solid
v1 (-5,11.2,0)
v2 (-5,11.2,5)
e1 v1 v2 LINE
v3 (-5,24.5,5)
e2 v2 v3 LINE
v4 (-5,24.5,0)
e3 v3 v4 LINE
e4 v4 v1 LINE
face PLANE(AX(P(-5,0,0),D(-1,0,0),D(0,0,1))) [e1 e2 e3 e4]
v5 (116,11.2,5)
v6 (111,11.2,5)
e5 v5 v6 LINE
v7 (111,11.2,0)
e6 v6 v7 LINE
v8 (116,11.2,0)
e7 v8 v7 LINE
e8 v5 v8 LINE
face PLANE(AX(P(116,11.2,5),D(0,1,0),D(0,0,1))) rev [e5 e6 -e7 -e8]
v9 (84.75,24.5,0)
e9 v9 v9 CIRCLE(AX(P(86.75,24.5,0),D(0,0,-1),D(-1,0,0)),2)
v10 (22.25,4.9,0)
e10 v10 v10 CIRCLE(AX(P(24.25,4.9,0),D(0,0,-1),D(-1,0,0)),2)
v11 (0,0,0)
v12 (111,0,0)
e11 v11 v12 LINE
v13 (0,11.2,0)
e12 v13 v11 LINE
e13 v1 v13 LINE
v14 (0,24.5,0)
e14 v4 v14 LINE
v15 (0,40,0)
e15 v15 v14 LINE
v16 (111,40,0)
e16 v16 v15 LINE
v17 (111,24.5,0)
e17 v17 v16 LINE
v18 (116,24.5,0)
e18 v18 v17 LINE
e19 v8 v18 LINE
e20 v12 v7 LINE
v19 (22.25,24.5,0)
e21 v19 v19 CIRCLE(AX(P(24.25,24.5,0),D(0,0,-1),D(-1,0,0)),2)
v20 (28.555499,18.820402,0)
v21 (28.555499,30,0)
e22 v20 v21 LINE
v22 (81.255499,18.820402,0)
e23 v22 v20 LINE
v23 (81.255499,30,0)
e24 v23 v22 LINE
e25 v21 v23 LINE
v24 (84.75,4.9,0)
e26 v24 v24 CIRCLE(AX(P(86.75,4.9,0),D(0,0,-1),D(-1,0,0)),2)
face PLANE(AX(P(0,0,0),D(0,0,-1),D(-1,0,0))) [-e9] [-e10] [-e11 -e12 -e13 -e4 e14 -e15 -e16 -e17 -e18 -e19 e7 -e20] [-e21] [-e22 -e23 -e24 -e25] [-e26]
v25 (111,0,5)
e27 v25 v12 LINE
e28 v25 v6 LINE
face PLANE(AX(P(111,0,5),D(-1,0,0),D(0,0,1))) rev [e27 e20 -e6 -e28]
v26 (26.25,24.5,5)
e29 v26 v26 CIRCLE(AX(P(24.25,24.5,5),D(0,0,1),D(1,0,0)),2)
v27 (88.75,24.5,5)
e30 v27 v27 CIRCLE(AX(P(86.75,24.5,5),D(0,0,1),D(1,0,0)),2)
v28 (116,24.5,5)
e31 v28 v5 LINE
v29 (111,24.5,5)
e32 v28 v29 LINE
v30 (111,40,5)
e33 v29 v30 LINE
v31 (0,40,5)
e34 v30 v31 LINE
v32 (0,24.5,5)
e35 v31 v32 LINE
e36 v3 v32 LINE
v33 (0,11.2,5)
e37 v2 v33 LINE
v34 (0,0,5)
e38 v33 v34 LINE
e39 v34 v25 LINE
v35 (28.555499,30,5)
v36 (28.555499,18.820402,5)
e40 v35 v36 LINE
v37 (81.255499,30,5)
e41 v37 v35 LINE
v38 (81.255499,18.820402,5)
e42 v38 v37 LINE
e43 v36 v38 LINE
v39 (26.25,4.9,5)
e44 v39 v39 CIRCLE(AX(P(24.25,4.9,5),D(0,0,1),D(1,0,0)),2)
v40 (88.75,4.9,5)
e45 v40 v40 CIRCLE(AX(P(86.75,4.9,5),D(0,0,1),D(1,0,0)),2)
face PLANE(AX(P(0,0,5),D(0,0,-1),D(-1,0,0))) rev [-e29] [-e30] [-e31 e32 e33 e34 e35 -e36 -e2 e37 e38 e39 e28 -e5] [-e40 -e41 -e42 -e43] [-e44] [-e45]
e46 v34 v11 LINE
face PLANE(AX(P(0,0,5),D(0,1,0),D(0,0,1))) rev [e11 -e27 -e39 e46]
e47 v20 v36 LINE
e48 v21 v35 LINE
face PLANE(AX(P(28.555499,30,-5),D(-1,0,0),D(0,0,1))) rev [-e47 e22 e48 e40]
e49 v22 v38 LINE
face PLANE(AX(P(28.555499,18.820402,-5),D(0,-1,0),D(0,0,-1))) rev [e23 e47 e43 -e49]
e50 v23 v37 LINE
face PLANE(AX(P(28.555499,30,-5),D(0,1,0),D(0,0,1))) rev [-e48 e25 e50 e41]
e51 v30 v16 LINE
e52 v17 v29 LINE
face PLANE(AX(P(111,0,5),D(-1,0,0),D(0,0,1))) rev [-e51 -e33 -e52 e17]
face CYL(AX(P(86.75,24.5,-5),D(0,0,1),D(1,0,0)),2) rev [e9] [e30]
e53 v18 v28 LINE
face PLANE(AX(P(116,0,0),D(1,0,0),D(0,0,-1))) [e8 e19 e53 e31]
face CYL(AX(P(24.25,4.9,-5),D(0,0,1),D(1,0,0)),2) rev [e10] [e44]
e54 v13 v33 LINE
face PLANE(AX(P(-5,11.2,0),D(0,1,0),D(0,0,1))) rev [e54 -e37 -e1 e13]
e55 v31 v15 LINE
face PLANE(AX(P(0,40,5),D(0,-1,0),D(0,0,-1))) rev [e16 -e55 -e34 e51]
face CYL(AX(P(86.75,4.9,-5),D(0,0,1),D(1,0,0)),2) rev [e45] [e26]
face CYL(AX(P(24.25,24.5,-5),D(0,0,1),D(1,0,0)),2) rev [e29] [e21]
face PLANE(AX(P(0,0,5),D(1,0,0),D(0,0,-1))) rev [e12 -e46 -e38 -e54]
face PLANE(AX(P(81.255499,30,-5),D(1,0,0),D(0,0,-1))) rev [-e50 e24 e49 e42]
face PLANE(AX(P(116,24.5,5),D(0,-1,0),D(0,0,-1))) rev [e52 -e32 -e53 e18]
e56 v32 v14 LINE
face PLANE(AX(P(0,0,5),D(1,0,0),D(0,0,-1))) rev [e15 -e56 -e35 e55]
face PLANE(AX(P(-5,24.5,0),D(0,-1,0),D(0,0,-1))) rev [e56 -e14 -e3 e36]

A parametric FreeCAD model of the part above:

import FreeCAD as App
import Part
import Sketcher
Q = App.Units.Quantity


def add_polygon(sketch, points):
    """Adds a closed chain of lines whose ends are joined by coincident constraints."""
    first, n = sketch.GeometryCount, len(points)
    for a, b in zip(points, points[1:] + points[:1]):
        sketch.addGeometry(Part.LineSegment(App.Vector(*a, 0), App.Vector(*b, 0)), False)
    for i in range(n):
        sketch.addConstraint(Sketcher.Constraint("Coincident", first + i, 2, first + (i + 1) % n, 1))

doc = App.newDocument("Part")
body = doc.addObject("PartDesign::Body", "Body")

# Sketch on XY plane
sketch1 = body.newObject("Sketcher::SketchObject", "Sketch")
sketch1.AttachmentSupport = (doc.getObject("XY_Plane"), [""])
sketch1.MapMode = "FlatFace"
add_polygon(sketch1, [(0, 40), (0, 0), (111, 0), (111, 40)])  # lines 0-3
sketch1.addConstraint([
    Sketcher.Constraint("Vertical", 0),
    Sketcher.Constraint("Horizontal", 1),
    Sketcher.Constraint("Vertical", 2),
    Sketcher.Constraint("Horizontal", 3),
    Sketcher.Constraint("Coincident", 0, 2, -1, 1),
    Sketcher.Constraint("DistanceX", 1, 1, 1, 2, Q("111 mm")),
    Sketcher.Constraint("DistanceY", 0, 2, 0, 1, Q("40 mm")),
])
pad1 = body.newObject("PartDesign::Pad", "Pad")
pad1.Profile = sketch1
pad1.Length = 5

# Sketch on XY plane
sketch2 = body.newObject("Sketcher::SketchObject", "Sketch001")
sketch2.AttachmentSupport = (doc.getObject("XY_Plane"), [""])
sketch2.MapMode = "FlatFace"
sketch2.AttachmentOffset = App.Placement(App.Vector(0, 0, 5), App.Rotation())
sketch2.addGeometry(Part.Circle(App.Vector(24.2, 24.5, 0), App.Vector(0, 0, 1), 2), False)  # 0
sketch2.addGeometry(Part.Circle(App.Vector(86.8, 24.5, 0), App.Vector(0, 0, 1), 2), False)  # 1
sketch2.addGeometry(Part.Circle(App.Vector(24.2, 4.9, 0), App.Vector(0, 0, 1), 2), False)  # 2
sketch2.addGeometry(Part.Circle(App.Vector(86.8, 4.9, 0), App.Vector(0, 0, 1), 2), False)  # 3
add_polygon(sketch2, [(28.6, 30), (28.6, 18.8), (81.3, 18.8), (81.3, 30)])  # lines 4-7
sketch2.addConstraint([
    Sketcher.Constraint("Vertical", 4),
    Sketcher.Constraint("Horizontal", 5),
    Sketcher.Constraint("Vertical", 6),
    Sketcher.Constraint("Horizontal", 7),
    Sketcher.Constraint("Equal", 0, 1),
    Sketcher.Constraint("Equal", 1, 2),
    Sketcher.Constraint("Equal", 2, 3),
    Sketcher.Constraint("Horizontal", 0, 3, 1, 3),
    Sketcher.Constraint("Horizontal", 2, 3, 3, 3),
    Sketcher.Constraint("Vertical", 0, 3, 2, 3),
    Sketcher.Constraint("Vertical", 1, 3, 3, 3),
    Sketcher.Constraint("Diameter", 0, Q("4 mm")),
    Sketcher.Constraint("DistanceX", 5, 1, 5, 2, Q("52.7 mm")),
    Sketcher.Constraint("DistanceY", -1, 1, 6, 2, Q("30 mm")),
    Sketcher.Constraint("DistanceY", -1, 1, 0, 3, Q("24.5 mm")),
    Sketcher.Constraint("DistanceY", -1, 1, 2, 3, Q("4.9 mm")),
    Sketcher.Constraint("DistanceX", 0, 3, 1, 3, Q("62.5 mm")),
    Sketcher.Constraint("DistanceX", -1, 1, 0, 3, Q("24.25 mm")),
    Sketcher.Constraint("DistanceX", -1, 1, 4, 2, Q("28.555499 mm")),
    Sketcher.Constraint("DistanceY", 4, 2, 4, 1, Q("11.179598 mm")),
])
pocket1 = body.newObject("PartDesign::Pocket", "Pocket")
pocket1.Profile = sketch2
pocket1.Length = 10

# Sketch on YZ plane
sketch3 = body.newObject("Sketcher::SketchObject", "Sketch002")
sketch3.AttachmentSupport = (doc.getObject("YZ_Plane"), [""])
sketch3.MapMode = "FlatFace"
add_polygon(sketch3, [(24, 0), (11, 0), (11, 5), (24, 5)])  # lines 0-3
sketch3.addConstraint([
    Sketcher.Constraint("Horizontal", 0),
    Sketcher.Constraint("Vertical", 1),
    Sketcher.Constraint("Horizontal", 2),
    Sketcher.Constraint("Vertical", 3),
    Sketcher.Constraint("PointOnObject", 0, 2, -1),
    Sketcher.Constraint("DistanceY", 1, 1, 1, 2, Q("5 mm")),
    Sketcher.Constraint("DistanceX", 0, 2, 0, 1, Q("13.3 mm")),
    Sketcher.Constraint("DistanceX", -1, 1, 0, 2, Q("11.2 mm")),
])
pad2 = body.newObject("PartDesign::Pad", "Pad001")
pad2.Profile = sketch3
pad2.Length = 5
pad2.Reversed = True

# Sketch on YZ plane
sketch4 = body.newObject("Sketcher::SketchObject", "Sketch003")
sketch4.AttachmentSupport = (doc.getObject("YZ_Plane"), [""])
sketch4.MapMode = "FlatFace"
sketch4.AttachmentOffset = App.Placement(App.Vector(0, 0, 111), App.Rotation())
add_polygon(sketch4, [(24, 5), (11, 5), (11, 0), (24, 0)])  # lines 0-3
sketch4.addConstraint([
    Sketcher.Constraint("Horizontal", 0),
    Sketcher.Constraint("Vertical", 1),
    Sketcher.Constraint("Horizontal", 2),
    Sketcher.Constraint("Vertical", 3),
    Sketcher.Constraint("PointOnObject", 1, 2, -1),
    Sketcher.Constraint("DistanceY", 1, 2, 1, 1, Q("5 mm")),
    Sketcher.Constraint("DistanceX", 0, 2, 0, 1, Q("13.3 mm")),
    Sketcher.Constraint("DistanceX", -1, 1, 0, 2, Q("11.2 mm")),
])
pad3 = body.newObject("PartDesign::Pad", "Pad002")
pad3.Profile = sketch4
pad3.Length = 5

doc.recompute()
